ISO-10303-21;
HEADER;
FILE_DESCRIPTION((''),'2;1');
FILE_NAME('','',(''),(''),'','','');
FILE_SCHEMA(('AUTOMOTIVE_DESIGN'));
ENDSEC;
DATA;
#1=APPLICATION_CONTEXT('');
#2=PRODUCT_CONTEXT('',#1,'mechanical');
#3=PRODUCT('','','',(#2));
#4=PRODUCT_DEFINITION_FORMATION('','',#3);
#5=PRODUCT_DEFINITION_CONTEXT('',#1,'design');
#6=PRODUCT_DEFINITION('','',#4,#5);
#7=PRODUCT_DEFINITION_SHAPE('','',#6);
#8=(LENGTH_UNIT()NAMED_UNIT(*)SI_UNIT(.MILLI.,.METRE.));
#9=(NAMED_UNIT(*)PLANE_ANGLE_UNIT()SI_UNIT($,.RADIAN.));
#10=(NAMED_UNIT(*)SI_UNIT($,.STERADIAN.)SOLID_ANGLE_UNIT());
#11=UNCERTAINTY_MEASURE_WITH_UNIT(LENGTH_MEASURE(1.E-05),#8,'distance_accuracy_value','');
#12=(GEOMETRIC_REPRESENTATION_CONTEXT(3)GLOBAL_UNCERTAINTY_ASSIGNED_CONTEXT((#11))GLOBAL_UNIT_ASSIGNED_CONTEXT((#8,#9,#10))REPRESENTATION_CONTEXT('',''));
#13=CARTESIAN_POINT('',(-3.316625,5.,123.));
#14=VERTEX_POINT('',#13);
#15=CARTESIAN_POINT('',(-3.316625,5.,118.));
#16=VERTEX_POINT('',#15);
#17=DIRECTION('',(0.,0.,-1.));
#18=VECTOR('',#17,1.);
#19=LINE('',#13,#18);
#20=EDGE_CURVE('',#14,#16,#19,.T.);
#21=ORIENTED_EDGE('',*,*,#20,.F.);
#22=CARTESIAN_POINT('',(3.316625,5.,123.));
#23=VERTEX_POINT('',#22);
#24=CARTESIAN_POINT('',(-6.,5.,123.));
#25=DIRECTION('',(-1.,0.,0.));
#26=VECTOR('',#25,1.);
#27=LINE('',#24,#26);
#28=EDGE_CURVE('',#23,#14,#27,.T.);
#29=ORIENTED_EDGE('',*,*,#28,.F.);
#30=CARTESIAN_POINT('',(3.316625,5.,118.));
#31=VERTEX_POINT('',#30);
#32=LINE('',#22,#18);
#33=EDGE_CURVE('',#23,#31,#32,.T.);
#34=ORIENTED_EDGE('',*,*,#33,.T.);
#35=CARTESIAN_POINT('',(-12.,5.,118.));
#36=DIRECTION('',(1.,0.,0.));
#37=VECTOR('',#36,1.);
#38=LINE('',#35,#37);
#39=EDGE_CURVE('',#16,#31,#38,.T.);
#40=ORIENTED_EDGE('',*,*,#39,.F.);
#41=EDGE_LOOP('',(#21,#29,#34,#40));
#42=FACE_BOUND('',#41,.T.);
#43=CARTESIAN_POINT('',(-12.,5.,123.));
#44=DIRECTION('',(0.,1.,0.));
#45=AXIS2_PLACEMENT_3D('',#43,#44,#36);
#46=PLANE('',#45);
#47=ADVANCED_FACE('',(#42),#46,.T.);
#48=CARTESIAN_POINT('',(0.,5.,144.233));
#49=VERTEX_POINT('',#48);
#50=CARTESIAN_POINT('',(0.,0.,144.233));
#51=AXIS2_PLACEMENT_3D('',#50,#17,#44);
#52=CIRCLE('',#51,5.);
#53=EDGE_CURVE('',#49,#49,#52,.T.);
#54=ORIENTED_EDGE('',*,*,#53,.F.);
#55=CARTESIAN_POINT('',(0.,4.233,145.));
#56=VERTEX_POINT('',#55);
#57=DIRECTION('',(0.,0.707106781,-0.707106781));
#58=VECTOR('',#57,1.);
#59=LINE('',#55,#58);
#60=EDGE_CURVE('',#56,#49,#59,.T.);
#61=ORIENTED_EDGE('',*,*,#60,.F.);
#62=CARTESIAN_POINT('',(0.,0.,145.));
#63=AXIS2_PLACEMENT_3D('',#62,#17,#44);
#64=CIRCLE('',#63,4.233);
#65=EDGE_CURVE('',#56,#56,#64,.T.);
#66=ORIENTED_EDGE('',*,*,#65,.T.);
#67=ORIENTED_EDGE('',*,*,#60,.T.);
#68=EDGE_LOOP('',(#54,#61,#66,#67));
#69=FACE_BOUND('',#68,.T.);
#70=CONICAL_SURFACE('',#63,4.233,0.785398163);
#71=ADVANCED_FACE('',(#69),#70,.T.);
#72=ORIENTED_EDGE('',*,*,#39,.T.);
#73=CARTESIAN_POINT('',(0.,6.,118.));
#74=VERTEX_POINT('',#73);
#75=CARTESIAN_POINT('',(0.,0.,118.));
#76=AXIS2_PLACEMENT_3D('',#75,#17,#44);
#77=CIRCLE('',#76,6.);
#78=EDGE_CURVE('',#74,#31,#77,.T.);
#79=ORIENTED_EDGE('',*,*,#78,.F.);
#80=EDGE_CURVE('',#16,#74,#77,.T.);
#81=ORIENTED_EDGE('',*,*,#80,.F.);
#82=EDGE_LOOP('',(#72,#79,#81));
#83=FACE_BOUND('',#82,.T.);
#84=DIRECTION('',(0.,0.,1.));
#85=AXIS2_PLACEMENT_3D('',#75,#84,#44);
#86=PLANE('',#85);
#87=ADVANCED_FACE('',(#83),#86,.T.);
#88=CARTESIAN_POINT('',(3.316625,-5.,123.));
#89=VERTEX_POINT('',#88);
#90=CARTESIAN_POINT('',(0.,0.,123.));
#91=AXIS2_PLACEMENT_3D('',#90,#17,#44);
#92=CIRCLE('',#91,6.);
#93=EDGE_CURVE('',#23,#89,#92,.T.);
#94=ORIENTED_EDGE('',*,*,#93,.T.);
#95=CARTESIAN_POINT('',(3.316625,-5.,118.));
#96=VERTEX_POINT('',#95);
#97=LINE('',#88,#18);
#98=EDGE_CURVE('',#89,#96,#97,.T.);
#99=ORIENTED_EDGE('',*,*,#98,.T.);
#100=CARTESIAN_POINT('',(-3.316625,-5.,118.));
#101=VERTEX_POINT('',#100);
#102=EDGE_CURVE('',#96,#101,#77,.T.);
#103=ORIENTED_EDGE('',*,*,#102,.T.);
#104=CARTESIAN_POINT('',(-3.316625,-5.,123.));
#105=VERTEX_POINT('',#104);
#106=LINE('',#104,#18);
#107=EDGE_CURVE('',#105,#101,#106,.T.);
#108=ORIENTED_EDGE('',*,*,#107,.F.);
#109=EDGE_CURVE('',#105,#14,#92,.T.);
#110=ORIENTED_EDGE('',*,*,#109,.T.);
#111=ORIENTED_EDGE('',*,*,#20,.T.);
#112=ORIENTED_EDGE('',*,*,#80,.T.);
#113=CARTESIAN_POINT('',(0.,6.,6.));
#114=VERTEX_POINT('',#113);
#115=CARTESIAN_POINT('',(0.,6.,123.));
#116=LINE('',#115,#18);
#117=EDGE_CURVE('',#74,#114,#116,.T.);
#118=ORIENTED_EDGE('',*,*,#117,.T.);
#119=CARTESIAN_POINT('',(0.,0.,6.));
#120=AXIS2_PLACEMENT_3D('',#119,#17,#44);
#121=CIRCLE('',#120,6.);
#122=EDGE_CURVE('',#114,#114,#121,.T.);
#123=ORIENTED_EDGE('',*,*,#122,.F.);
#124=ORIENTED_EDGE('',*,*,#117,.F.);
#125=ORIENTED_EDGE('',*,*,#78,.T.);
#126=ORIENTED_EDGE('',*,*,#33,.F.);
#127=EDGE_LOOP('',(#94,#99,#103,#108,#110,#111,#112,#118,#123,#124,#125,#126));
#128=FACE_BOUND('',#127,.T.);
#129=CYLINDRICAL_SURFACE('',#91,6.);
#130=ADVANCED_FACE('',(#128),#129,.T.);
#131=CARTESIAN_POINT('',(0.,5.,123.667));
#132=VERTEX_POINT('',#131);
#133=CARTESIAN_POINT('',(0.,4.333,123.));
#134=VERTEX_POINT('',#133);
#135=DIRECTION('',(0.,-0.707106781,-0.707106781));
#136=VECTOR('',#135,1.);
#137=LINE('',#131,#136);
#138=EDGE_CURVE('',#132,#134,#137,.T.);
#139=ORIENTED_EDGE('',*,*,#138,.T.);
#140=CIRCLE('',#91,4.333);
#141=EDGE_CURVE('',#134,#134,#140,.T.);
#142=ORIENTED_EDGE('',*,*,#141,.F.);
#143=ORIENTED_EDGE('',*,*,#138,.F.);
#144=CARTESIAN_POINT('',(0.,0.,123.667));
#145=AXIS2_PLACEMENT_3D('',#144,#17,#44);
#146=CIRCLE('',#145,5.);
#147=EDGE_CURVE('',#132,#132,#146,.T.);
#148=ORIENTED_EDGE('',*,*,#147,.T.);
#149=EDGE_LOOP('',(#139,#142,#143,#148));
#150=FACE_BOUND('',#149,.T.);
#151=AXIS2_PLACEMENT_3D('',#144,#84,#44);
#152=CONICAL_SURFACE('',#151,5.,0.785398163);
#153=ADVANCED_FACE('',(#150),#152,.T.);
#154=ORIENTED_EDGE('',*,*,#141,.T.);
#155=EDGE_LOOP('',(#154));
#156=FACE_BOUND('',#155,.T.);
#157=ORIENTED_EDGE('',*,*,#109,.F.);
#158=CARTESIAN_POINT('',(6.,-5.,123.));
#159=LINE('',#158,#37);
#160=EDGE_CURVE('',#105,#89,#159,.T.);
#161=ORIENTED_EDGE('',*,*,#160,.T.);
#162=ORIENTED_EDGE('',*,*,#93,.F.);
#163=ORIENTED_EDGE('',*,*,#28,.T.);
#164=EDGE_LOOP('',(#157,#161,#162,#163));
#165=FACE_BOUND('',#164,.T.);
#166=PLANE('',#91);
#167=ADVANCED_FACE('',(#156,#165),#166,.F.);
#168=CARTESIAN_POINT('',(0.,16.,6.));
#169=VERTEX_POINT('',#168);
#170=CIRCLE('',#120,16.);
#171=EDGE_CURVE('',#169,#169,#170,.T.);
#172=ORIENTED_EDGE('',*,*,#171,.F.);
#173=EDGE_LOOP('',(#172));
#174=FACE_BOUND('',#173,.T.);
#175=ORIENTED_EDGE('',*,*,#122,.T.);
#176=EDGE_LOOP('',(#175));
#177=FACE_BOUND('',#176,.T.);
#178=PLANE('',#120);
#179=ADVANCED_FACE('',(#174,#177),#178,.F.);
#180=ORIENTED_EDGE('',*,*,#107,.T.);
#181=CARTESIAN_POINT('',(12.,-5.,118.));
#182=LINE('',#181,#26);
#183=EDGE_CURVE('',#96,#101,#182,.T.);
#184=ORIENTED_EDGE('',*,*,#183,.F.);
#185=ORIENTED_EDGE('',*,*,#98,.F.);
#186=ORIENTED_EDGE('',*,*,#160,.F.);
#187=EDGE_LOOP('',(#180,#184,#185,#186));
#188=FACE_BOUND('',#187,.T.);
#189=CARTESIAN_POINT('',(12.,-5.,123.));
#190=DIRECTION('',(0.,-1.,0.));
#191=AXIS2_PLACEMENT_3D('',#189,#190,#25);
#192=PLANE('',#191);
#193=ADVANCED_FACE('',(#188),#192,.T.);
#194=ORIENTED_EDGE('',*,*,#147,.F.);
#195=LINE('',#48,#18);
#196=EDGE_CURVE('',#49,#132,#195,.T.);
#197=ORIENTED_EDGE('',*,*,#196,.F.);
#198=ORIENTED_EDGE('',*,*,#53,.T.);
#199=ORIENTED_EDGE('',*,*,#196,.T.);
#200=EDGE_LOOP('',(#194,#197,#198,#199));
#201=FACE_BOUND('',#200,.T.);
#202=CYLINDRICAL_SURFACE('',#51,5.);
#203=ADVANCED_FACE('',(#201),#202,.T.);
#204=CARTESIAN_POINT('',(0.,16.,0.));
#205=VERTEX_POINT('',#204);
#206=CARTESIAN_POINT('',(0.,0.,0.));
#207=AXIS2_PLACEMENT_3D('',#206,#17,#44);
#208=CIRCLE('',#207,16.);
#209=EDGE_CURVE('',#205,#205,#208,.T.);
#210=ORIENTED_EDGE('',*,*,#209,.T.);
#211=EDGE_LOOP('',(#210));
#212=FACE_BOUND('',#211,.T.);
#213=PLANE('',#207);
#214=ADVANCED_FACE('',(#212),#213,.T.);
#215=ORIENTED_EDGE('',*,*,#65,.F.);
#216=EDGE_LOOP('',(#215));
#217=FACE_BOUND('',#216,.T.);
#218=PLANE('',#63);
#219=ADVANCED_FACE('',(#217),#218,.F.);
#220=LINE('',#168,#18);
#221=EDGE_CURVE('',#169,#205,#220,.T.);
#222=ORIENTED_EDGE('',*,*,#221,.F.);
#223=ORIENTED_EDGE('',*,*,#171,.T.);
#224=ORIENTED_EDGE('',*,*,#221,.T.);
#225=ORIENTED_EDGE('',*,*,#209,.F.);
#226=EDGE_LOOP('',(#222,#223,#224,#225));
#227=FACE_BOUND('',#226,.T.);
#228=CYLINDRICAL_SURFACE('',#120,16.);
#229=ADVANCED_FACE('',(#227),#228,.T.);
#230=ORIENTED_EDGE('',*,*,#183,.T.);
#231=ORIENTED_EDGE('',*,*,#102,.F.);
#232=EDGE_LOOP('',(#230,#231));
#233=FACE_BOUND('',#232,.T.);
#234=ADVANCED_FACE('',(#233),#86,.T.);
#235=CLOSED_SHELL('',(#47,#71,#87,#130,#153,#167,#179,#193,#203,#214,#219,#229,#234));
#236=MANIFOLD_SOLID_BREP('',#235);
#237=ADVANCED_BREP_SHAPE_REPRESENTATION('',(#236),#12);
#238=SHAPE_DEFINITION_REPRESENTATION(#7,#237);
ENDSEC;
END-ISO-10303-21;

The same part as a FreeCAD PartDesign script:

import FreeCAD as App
import Part
import Sketcher

V = App.Vector

doc = App.newDocument("Part")
body = doc.addObject("PartDesign::Body", "Body")

# Sketch on YZ plane
sketch1 = body.newObject("Sketcher::SketchObject", "Sketch")
sketch1.AttachmentSupport = (doc.getObject("YZ_Plane"), [""])
sketch1.MapMode = "FlatFace"
sketch1.addGeometry(Part.LineSegment(V(0, 122.9, 0), V(0, 0, 0)), False)
sketch1.addGeometry(Part.LineSegment(V(0, 0, 0), V(16, 0, 0)), False)
sketch1.addGeometry(Part.LineSegment(V(16, 0, 0), V(16, 6, 0)), False)
sketch1.addGeometry(Part.LineSegment(V(16, 6, 0), V(3, 6, 0)), False)
sketch1.addGeometry(Part.LineSegment(V(3, 6, 0), V(3, 122.9, 0)), False)
sketch1.addGeometry(Part.LineSegment(V(3, 122.9, 0), V(0, 122.9, 0)), False)
sketch1.addConstraint(Sketcher.Constraint("Coincident", 0, 2, 1, 1))
sketch1.addConstraint(Sketcher.Constraint("Coincident", 1, 2, 2, 1))
sketch1.addConstraint(Sketcher.Constraint("Coincident", 2, 2, 3, 1))
sketch1.addConstraint(Sketcher.Constraint("Coincident", 3, 2, 4, 1))
sketch1.addConstraint(Sketcher.Constraint("Coincident", 4, 2, 5, 1))
sketch1.addConstraint(Sketcher.Constraint("Coincident", 5, 2, 0, 1))
sketch1.addConstraint(Sketcher.Constraint("Vertical", 0))
sketch1.addConstraint(Sketcher.Constraint("Horizontal", 1))
sketch1.addConstraint(Sketcher.Constraint("Vertical", 2))
sketch1.addConstraint(Sketcher.Constraint("Horizontal", 3))
sketch1.addConstraint(Sketcher.Constraint("Vertical", 4))
sketch1.addConstraint(Sketcher.Constraint("Horizontal", 5))
sketch1.addConstraint(Sketcher.Constraint("Coincident", 0, 2, -1, 1))
sketch1.addConstraint(Sketcher.Constraint("DistanceX", 1, 1, 1, 2, 16.0))
sketch1.addConstraint(Sketcher.Constraint("DistanceX", 3, 2, 3, 1, 13.0))
sketch1.addConstraint(Sketcher.Constraint("DistanceY", 2, 1, 2, 2, 6.0))
sketch1.addConstraint(Sketcher.Constraint("DistanceY", 0, 2, 0, 1, 122.9))
revolution = body.newObject("PartDesign::Revolution", "Revolution")
revolution.Profile = sketch1
revolution.ReferenceAxis = (sketch1, ["V_Axis"])
revolution.Angle = 360

# Sketch on YZ plane
sketch2 = body.newObject("Sketcher::SketchObject", "Sketch001")
sketch2.AttachmentSupport = (doc.getObject("YZ_Plane"), [""])
sketch2.MapMode = "FlatFace"
sketch2.addGeometry(Part.LineSegment(V(0, 123, 0), V(0, 0, 0)), False)
sketch2.addGeometry(Part.LineSegment(V(0, 0, 0), V(6, 0, 0)), False)
sketch2.addGeometry(Part.LineSegment(V(6, 0, 0), V(6, 123, 0)), False)
sketch2.addGeometry(Part.LineSegment(V(6, 123, 0), V(0, 123, 0)), False)
sketch2.addConstraint(Sketcher.Constraint("Coincident", 0, 2, 1, 1))
sketch2.addConstraint(Sketcher.Constraint("Coincident", 1, 2, 2, 1))
sketch2.addConstraint(Sketcher.Constraint("Coincident", 2, 2, 3, 1))
sketch2.addConstraint(Sketcher.Constraint("Coincident", 3, 2, 0, 1))
sketch2.addConstraint(Sketcher.Constraint("Vertical", 0))
sketch2.addConstraint(Sketcher.Constraint("Horizontal", 1))
sketch2.addConstraint(Sketcher.Constraint("Vertical", 2))
sketch2.addConstraint(Sketcher.Constraint("Horizontal", 3))
sketch2.addConstraint(Sketcher.Constraint("PointOnObject", 0, 2, -2))
sketch2.addConstraint(Sketcher.Constraint("DistanceX", 1, 1, 1, 2, 6.0))
sketch2.addConstraint(Sketcher.Constraint("DistanceY", 0, 2, 0, 1, 122.9))
sketch2.addConstraint(Sketcher.Constraint("DistanceY", -1, 1, 2, 2, 123.0))
revolution2 = body.newObject("PartDesign::Revolution", "Revolution001")
revolution2.Profile = sketch2
revolution2.ReferenceAxis = (sketch2, ["V_Axis"])
revolution2.Angle = 360

# Sketch on XY plane
sketch3 = body.newObject("Sketcher::SketchObject", "Sketch002")
sketch3.AttachmentSupport = (doc.getObject("XY_Plane"), [""])
sketch3.MapMode = "FlatFace"
sketch3.AttachmentOffset = App.Placement(V(0, 0, 123), App.Rotation())
sketch3.addGeometry(Part.LineSegment(V(-12, 12, 0), V(-12, 5, 0)), False)
sketch3.addGeometry(Part.LineSegment(V(-12, 5, 0), V(12, 5, 0)), False)
sketch3.addGeometry(Part.LineSegment(V(12, 5, 0), V(12, 12, 0)), False)
sketch3.addGeometry(Part.LineSegment(V(12, 12, 0), V(-12, 12, 0)), False)
sketch3.addConstraint(Sketcher.Constraint("Coincident", 0, 2, 1, 1))
sketch3.addConstraint(Sketcher.Constraint("Coincident", 1, 2, 2, 1))
sketch3.addConstraint(Sketcher.Constraint("Coincident", 2, 2, 3, 1))
sketch3.addConstraint(Sketcher.Constraint("Coincident", 3, 2, 0, 1))
sketch3.addConstraint(Sketcher.Constraint("Vertical", 0))
sketch3.addConstraint(Sketcher.Constraint("Horizontal", 1))
sketch3.addConstraint(Sketcher.Constraint("Vertical", 2))
sketch3.addConstraint(Sketcher.Constraint("Horizontal", 3))
sketch3.addConstraint(Sketcher.Constraint("DistanceX", 1, 1, 1, 2, 24.0))
sketch3.addConstraint(Sketcher.Constraint("DistanceY", 0, 2, 0, 1, 7.0))
sketch3.addConstraint(Sketcher.Constraint("DistanceX", 0, 2, -1, 1, 12.0))
sketch3.addConstraint(Sketcher.Constraint("DistanceY", -1, 1, 0, 2, 5.0))
pocket1 = body.newObject("PartDesign::Pocket", "Pocket")
pocket1.Profile = sketch3
pocket1.Length = 10
pocket1.Midplane = True

# Sketch on XY plane
sketch4 = body.newObject("Sketcher::SketchObject", "Sketch003")
sketch4.AttachmentSupport = (doc.getObject("XY_Plane"), [""])
sketch4.MapMode = "FlatFace"
sketch4.AttachmentOffset = App.Placement(V(0, 0, 123), App.Rotation())
sketch4.addGeometry(Part.LineSegment(V(-12, -5, 0), V(-12, -12, 0)), False)
sketch4.addGeometry(Part.LineSegment(V(-12, -12, 0), V(12, -12, 0)), False)
sketch4.addGeometry(Part.LineSegment(V(12, -12, 0), V(12, -5, 0)), False)
sketch4.addGeometry(Part.LineSegment(V(12, -5, 0), V(-12, -5, 0)), False)
sketch4.addConstraint(Sketcher.Constraint("Coincident", 0, 2, 1, 1))
sketch4.addConstraint(Sketcher.Constraint("Coincident", 1, 2, 2, 1))
sketch4.addConstraint(Sketcher.Constraint("Coincident", 2, 2, 3, 1))
sketch4.addConstraint(Sketcher.Constraint("Coincident", 3, 2, 0, 1))
sketch4.addConstraint(Sketcher.Constraint("Vertical", 0))
sketch4.addConstraint(Sketcher.Constraint("Horizontal", 1))
sketch4.addConstraint(Sketcher.Constraint("Vertical", 2))
sketch4.addConstraint(Sketcher.Constraint("Horizontal", 3))
sketch4.addConstraint(Sketcher.Constraint("DistanceX", 1, 1, 1, 2, 24.0))
sketch4.addConstraint(Sketcher.Constraint("DistanceY", 0, 2, 0, 1, 7.0))
sketch4.addConstraint(Sketcher.Constraint("DistanceX", 0, 2, -1, 1, 12.0))
sketch4.addConstraint(Sketcher.Constraint("DistanceY", 0, 2, -1, 1, 12.0))
pocket2 = body.newObject("PartDesign::Pocket", "Pocket001")
pocket2.Profile = sketch4
pocket2.Length = 10
pocket2.Midplane = True

# Sketch on YZ plane
sketch5 = body.newObject("Sketcher::SketchObject", "Sketch004")
sketch5.AttachmentSupport = (doc.getObject("YZ_Plane"), [""])
sketch5.MapMode = "FlatFace"
sketch5.addGeometry(Part.LineSegment(V(0, 145, 0), V(0, 122.9, 0)), False)
sketch5.addGeometry(Part.LineSegment(V(0, 122.9, 0), V(4.2, 122.9, 0)), False)
sketch5.addGeometry(Part.LineSegment(V(4.2, 122.9, 0), V(5, 123.7, 0)), False)
sketch5.addGeometry(Part.LineSegment(V(5, 123.7, 0), V(5, 144.2, 0)), False)
sketch5.addGeometry(Part.LineSegment(V(5, 144.2, 0), V(4.2, 145, 0)), False)
sketch5.addGeometry(Part.LineSegment(V(4.2, 145, 0), V(0, 145, 0)), False)
sketch5.addConstraint(Sketcher.Constraint("Coincident", 0, 2, 1, 1))
sketch5.addConstraint(Sketcher.Constraint("Coincident", 1, 2, 2, 1))
sketch5.addConstraint(Sketcher.Constraint("Coincident", 2, 2, 3, 1))
sketch5.addConstraint(Sketcher.Constraint("Coincident", 3, 2, 4, 1))
sketch5.addConstraint(Sketcher.Constraint("Coincident", 4, 2, 5, 1))
sketch5.addConstraint(Sketcher.Constraint("Coincident", 5, 2, 0, 1))
sketch5.addConstraint(Sketcher.Constraint("Vertical", 0))
sketch5.addConstraint(Sketcher.Constraint("Horizontal", 1))
sketch5.addConstraint(Sketcher.Constraint("Vertical", 3))
sketch5.addConstraint(Sketcher.Constraint("Horizontal", 5))
sketch5.addConstraint(Sketcher.Constraint("PointOnObject", 0, 2, -2))
sketch5.addConstraint(Sketcher.Constraint("Perpendicular", 2, 4))
sketch5.addConstraint(Sketcher.Constraint("Vertical", 1, 2, 4, 2))
sketch5.addConstraint(Sketcher.Constraint("Equal", 2, 4))
sketch5.addConstraint(Sketcher.Constraint("DistanceY", 0, 2, 0, 1, 22.1))
sketch5.addConstraint(Sketcher.Constraint("DistanceX", -1, 1, 2, 2, 5.0))
sketch5.addConstraint(Sketcher.Constraint("DistanceY", -1, 1, 4, 2, 145.0))
sketch5.addConstraint(Sketcher.Constraint("DistanceX", 1, 1, 1, 2, 4.233))
revolution3 = body.newObject("PartDesign::Revolution", "Revolution002")
revolution3.Profile = sketch5
revolution3.ReferenceAxis = (sketch5, ["V_Axis"])
revolution3.Angle = 360

doc.recompute()
